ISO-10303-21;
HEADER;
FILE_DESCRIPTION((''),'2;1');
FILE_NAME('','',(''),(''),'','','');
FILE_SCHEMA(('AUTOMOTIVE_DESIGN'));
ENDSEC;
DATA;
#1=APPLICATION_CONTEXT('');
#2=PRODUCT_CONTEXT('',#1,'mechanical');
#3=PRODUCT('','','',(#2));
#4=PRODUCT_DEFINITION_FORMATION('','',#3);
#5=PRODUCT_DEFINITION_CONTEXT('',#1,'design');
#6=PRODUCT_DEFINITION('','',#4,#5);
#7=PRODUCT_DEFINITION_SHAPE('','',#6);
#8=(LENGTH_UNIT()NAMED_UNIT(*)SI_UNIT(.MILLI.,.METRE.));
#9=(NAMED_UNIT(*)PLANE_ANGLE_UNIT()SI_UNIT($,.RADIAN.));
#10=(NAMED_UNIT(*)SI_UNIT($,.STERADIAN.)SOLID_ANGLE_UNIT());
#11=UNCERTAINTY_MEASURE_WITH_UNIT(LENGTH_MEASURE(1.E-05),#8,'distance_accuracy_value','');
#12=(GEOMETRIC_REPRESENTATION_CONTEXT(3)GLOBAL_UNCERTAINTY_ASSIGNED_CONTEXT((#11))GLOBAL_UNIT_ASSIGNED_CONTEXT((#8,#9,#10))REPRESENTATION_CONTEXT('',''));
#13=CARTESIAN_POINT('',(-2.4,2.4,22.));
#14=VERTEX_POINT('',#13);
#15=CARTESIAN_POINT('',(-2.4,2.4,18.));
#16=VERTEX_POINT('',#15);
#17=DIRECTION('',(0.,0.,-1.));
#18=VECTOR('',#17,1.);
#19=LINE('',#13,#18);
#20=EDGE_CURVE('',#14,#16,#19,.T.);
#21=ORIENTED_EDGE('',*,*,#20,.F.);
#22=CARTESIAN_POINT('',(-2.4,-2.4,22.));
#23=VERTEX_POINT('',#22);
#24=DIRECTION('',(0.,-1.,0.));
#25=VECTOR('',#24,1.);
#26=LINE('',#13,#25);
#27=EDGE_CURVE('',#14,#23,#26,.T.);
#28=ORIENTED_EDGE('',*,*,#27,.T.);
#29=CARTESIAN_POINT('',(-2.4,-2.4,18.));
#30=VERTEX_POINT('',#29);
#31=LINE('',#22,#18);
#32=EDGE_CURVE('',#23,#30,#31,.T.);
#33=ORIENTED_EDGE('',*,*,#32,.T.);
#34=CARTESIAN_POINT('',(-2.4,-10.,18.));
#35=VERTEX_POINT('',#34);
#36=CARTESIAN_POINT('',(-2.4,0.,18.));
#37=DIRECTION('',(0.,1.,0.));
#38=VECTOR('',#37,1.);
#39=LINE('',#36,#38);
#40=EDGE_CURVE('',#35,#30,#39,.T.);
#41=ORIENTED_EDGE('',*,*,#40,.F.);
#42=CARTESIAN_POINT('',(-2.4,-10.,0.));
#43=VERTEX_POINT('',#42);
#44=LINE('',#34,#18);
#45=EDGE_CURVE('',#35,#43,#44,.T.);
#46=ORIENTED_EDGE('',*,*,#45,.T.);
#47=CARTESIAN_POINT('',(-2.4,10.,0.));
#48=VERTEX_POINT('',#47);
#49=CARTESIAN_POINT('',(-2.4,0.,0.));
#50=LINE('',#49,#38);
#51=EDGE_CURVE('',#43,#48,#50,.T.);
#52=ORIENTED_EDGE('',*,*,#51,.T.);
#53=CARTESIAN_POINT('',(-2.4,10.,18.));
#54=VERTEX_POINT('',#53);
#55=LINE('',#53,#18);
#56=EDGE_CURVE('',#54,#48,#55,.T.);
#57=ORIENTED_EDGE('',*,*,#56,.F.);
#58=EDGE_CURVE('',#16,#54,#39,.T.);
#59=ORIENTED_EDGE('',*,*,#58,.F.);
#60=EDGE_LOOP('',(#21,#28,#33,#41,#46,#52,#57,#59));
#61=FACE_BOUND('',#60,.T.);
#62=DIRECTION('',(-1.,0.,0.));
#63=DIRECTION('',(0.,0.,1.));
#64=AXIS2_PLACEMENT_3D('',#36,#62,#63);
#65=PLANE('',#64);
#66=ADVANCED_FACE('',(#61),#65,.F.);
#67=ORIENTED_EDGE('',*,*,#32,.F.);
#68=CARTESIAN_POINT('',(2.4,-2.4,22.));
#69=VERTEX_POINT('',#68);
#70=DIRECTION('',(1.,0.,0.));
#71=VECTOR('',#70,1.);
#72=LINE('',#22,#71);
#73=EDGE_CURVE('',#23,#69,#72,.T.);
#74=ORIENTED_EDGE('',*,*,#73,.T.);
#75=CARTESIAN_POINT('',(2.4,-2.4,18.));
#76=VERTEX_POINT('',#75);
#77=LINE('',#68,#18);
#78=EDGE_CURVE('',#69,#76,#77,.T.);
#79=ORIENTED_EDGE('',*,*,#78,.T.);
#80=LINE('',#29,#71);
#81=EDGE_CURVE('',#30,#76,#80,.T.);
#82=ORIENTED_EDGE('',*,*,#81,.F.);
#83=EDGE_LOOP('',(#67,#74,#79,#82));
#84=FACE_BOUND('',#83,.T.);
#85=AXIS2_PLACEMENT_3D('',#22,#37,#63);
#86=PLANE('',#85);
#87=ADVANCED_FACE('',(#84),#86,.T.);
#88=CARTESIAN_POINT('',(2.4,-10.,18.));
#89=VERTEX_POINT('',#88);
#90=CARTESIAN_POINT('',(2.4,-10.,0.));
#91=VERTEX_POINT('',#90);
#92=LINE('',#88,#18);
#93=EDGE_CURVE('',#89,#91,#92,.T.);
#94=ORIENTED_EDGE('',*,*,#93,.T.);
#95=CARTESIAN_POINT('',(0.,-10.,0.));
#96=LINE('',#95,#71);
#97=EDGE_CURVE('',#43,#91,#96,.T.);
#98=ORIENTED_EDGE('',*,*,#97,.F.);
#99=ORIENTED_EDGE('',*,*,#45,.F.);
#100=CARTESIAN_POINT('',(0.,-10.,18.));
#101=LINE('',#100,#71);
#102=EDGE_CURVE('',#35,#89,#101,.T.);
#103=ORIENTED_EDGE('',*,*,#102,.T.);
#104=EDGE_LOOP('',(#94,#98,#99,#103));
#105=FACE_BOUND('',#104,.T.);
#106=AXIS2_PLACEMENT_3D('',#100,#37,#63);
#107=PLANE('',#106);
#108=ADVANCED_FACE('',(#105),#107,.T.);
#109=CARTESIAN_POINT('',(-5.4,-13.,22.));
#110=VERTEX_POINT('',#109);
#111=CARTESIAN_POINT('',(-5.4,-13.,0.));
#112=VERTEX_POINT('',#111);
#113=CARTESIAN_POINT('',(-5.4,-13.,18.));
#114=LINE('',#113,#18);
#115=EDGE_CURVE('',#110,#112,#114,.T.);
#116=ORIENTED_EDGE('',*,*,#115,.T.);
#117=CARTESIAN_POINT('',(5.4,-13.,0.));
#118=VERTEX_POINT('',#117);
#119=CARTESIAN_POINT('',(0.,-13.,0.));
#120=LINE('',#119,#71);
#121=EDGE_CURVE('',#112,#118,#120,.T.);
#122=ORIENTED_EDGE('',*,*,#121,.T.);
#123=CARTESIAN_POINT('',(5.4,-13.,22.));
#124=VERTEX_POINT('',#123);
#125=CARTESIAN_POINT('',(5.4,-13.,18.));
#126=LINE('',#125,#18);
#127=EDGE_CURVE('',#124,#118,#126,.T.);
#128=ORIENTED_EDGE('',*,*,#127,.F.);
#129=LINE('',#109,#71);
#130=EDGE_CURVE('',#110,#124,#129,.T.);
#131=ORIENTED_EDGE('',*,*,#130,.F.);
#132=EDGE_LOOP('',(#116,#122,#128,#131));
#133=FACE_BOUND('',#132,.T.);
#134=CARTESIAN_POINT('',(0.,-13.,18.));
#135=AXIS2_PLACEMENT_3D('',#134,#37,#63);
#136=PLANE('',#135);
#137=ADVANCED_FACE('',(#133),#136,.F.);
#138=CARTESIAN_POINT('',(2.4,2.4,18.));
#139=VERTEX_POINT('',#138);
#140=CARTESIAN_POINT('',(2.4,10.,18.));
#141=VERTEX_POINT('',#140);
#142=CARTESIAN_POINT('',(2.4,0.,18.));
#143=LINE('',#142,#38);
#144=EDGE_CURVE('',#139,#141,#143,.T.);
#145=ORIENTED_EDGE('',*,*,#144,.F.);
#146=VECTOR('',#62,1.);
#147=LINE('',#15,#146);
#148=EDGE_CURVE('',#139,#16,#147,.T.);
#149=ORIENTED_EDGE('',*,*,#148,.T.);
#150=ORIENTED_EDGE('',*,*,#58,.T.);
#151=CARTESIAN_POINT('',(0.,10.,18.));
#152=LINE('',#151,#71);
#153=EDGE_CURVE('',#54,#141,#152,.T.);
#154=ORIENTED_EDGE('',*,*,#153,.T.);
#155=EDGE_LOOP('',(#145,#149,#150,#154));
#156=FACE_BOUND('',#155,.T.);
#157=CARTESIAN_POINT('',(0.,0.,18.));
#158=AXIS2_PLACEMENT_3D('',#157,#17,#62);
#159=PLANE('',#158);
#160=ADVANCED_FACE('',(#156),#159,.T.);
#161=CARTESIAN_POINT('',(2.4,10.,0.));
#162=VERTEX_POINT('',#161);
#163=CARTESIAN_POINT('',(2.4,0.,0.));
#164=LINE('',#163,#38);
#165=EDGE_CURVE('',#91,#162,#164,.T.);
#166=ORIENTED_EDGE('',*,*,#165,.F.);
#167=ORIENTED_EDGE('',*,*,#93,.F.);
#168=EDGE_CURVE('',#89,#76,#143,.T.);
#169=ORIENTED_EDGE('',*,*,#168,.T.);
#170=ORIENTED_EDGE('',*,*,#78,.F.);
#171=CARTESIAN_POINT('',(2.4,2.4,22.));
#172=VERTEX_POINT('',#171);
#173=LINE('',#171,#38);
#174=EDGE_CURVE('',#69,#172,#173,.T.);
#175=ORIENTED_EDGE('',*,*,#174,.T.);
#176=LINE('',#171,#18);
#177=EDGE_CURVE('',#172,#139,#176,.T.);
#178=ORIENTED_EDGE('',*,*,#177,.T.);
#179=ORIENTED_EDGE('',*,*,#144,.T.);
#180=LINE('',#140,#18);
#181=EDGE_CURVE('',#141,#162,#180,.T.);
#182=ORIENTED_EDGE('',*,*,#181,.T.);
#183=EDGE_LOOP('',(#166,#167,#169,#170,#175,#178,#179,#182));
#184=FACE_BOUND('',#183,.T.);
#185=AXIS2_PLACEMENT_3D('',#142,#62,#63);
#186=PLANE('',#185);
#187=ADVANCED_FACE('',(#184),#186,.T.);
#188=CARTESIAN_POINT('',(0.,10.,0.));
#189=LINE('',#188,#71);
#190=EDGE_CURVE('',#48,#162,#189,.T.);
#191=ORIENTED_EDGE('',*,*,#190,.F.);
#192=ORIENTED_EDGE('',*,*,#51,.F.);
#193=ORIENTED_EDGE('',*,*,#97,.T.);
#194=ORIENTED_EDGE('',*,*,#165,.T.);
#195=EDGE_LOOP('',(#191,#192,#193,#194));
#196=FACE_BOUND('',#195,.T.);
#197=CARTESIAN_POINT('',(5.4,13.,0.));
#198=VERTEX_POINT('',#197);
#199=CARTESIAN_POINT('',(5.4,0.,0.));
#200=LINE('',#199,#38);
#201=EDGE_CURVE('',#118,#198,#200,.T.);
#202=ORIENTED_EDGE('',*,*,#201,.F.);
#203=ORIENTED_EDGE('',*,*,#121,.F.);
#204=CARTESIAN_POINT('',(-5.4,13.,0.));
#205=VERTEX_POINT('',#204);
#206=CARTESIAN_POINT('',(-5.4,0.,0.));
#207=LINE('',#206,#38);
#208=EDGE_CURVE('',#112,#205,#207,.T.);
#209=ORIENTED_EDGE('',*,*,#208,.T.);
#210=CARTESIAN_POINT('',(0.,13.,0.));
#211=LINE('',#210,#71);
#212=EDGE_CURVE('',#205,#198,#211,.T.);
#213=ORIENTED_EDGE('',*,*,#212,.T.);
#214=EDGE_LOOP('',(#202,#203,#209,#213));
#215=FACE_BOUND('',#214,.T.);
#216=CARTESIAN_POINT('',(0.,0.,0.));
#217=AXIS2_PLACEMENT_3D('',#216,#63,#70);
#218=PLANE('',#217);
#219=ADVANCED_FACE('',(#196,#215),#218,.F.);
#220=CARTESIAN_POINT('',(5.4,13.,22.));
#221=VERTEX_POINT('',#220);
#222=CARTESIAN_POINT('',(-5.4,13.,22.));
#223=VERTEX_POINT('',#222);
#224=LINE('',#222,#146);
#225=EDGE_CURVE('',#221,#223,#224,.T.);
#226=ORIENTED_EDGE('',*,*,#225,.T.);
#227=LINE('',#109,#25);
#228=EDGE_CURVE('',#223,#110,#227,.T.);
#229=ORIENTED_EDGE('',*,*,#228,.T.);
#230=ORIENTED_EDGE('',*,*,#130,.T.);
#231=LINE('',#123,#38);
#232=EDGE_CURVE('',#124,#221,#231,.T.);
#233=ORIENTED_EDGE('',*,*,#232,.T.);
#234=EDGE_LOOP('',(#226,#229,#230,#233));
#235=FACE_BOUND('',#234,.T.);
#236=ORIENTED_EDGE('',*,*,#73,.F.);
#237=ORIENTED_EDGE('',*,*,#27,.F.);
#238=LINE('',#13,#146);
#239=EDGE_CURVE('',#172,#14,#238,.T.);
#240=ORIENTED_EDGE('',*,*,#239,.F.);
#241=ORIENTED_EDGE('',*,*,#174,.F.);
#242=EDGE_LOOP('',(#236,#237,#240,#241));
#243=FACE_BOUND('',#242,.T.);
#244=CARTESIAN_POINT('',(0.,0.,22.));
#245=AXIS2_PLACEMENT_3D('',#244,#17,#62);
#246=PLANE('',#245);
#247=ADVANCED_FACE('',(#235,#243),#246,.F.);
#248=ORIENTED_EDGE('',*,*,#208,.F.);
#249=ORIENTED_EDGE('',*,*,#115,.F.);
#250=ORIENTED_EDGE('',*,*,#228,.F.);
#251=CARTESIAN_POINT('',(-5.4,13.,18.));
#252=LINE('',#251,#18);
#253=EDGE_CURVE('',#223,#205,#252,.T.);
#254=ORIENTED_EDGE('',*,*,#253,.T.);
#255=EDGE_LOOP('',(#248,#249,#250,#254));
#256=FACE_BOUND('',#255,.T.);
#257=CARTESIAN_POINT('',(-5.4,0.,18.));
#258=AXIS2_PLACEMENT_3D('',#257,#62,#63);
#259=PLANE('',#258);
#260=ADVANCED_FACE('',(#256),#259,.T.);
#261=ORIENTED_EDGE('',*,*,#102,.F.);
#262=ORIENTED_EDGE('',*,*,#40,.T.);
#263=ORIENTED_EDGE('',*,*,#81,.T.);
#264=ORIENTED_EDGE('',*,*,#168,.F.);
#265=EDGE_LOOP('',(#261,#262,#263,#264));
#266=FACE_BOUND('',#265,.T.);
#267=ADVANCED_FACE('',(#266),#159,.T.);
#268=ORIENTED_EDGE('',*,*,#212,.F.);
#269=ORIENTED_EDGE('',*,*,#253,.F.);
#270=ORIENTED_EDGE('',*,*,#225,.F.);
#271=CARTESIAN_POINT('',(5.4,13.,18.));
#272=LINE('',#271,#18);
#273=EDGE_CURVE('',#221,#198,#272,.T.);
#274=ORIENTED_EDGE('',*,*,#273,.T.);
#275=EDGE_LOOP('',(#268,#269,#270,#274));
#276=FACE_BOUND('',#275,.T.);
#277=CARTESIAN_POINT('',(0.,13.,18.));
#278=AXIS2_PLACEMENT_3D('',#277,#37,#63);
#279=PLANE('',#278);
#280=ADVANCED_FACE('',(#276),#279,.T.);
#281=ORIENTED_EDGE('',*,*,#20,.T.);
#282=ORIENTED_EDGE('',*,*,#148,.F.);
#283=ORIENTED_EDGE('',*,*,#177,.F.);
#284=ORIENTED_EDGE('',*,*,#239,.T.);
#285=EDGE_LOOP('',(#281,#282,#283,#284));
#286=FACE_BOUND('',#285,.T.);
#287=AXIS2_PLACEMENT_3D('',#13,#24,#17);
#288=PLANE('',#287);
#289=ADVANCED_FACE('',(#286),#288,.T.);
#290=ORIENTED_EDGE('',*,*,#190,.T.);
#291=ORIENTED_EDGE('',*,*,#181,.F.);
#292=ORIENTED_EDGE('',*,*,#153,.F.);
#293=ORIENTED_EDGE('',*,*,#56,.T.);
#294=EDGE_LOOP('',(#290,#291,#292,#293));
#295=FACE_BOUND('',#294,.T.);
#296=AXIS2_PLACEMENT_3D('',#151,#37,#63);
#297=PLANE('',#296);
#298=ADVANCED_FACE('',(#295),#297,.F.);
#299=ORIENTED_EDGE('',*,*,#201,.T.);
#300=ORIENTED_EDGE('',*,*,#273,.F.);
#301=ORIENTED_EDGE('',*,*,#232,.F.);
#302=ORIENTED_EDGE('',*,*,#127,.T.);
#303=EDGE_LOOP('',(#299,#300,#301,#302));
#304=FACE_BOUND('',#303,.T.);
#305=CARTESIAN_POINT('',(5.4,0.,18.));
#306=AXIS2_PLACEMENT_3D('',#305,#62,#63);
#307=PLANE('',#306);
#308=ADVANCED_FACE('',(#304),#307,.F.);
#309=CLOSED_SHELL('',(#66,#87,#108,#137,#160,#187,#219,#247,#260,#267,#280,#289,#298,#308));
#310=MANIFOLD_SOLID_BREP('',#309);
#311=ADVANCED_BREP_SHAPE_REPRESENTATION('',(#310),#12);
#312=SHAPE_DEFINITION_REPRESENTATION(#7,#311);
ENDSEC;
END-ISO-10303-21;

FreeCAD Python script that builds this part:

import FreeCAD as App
import Part
import Sketcher
from FreeCAD import Vector
Q = App.Units.Quantity

doc = App.newDocument("Part")
params = doc.addObject("Spreadsheet::Sheet", "Params")
for row, (alias, value) in enumerate([
    ("sketch1_height", "26 mm"),
    ("sketch1_height2", "20 mm"),
    ("sketch1_width", "10.8 mm"),
    ("sketch1_width2", "4.8 mm"),
    ("pad1_length", "18 mm"),
    ("sketch2_height", "26 mm"),
    ("sketch2_width", "10.8 mm"),
    ("sketch2_width2", "4.8 mm"),
    ("pad2_length", "4 mm"),
], start=1):
    params.set(f"A{row}", alias)
    params.set(f"B{row}", "=" + value)
    params.setAlias(f"B{row}", alias)

body = doc.addObject("PartDesign::Body", "Body")

sketch1 = body.newObject("Sketcher::SketchObject", "Sketch")
sketch1.AttachmentSupport = (doc.getObject("XY_Plane"), [""])
sketch1.MapMode = "FlatFace"
sketch1.addGeometry(Part.LineSegment(Vector(-5.4, 13, 0), Vector(-5.4, -13, 0)), False)
sketch1.addGeometry(Part.LineSegment(Vector(-5.4, -13, 0), Vector(5.4, -13, 0)), False)
sketch1.addGeometry(Part.LineSegment(Vector(5.4, -13, 0), Vector(5.4, 13, 0)), False)
sketch1.addGeometry(Part.LineSegment(Vector(5.4, 13, 0), Vector(-5.4, 13, 0)), False)
sketch1.addGeometry(Part.LineSegment(Vector(2.4, -10, 0), Vector(-2.4, -10, 0)), False)
sketch1.addGeometry(Part.LineSegment(Vector(-2.4, -10, 0), Vector(-2.4, 10, 0)), False)
sketch1.addGeometry(Part.LineSegment(Vector(-2.4, 10, 0), Vector(2.4, 10, 0)), False)
sketch1.addGeometry(Part.LineSegment(Vector(2.4, 10, 0), Vector(2.4, -10, 0)), False)
sketch1.addConstraint(Sketcher.Constraint("Coincident", 0, 2, 1, 1))
sketch1.addConstraint(Sketcher.Constraint("Coincident", 1, 2, 2, 1))
sketch1.addConstraint(Sketcher.Constraint("Coincident", 2, 2, 3, 1))
sketch1.addConstraint(Sketcher.Constraint("Coincident", 3, 2, 0, 1))
sketch1.addConstraint(Sketcher.Constraint("Coincident", 4, 2, 5, 1))
sketch1.addConstraint(Sketcher.Constraint("Coincident", 5, 2, 6, 1))
sketch1.addConstraint(Sketcher.Constraint("Coincident", 6, 2, 7, 1))
sketch1.addConstraint(Sketcher.Constraint("Coincident", 7, 2, 4, 1))
sketch1.addConstraint(Sketcher.Constraint("Vertical", 0))
sketch1.addConstraint(Sketcher.Constraint("Horizontal", 1))
sketch1.addConstraint(Sketcher.Constraint("Vertical", 2))
sketch1.addConstraint(Sketcher.Constraint("Horizontal", 3))
sketch1.addConstraint(Sketcher.Constraint("Horizontal", 4))
sketch1.addConstraint(Sketcher.Constraint("Vertical", 5))
sketch1.addConstraint(Sketcher.Constraint("Horizontal", 6))
sketch1.addConstraint(Sketcher.Constraint("Vertical", 7))
sketch1.addConstraint(Sketcher.Constraint("Symmetric", 0, 2, 2, 2, -1, 1))
sketch1.addConstraint(Sketcher.Constraint("Symmetric", 4, 2, 6, 2, -1, 1))
sketch1.addConstraint(Sketcher.Constraint("DistanceY", 0, 2, 0, 1, Q("26 mm")))
sketch1.addConstraint(Sketcher.Constraint("DistanceY", 5, 1, 5, 2, Q("20 mm")))
sketch1.addConstraint(Sketcher.Constraint("DistanceX", 1, 1, 1, 2, Q("10.8 mm")))
sketch1.addConstraint(Sketcher.Constraint("DistanceX", 4, 2, 4, 1, Q("4.8 mm")))
sketch1.setExpression("Constraints[18]", "Params.sketch1_height")
sketch1.setExpression("Constraints[19]", "Params.sketch1_height2")
sketch1.setExpression("Constraints[20]", "Params.sketch1_width")
sketch1.setExpression("Constraints[21]", "Params.sketch1_width2")
pad1 = body.newObject("PartDesign::Pad", "Pad")
pad1.Profile = sketch1
pad1.setExpression("Length", "Params.pad1_length")

sketch2 = body.newObject("Sketcher::SketchObject", "Sketch001")
sketch2.AttachmentSupport = (doc.getObject("XY_Plane"), [""])
sketch2.MapMode = "FlatFace"
sketch2.AttachmentOffset = App.Placement(Vector(0, 0, 18), App.Rotation())
sketch2.addGeometry(Part.LineSegment(Vector(-5.4, 13, 0), Vector(-5.4, -13, 0)), False)
sketch2.addGeometry(Part.LineSegment(Vector(-5.4, -13, 0), Vector(5.4, -13, 0)), False)
sketch2.addGeometry(Part.LineSegment(Vector(5.4, -13, 0), Vector(5.4, 13, 0)), False)
sketch2.addGeometry(Part.LineSegment(Vector(5.4, 13, 0), Vector(-5.4, 13, 0)), False)
sketch2.addGeometry(Part.LineSegment(Vector(2.4, -2.4, 0), Vector(-2.4, -2.4, 0)), False)
sketch2.addGeometry(Part.LineSegment(Vector(-2.4, -2.4, 0), Vector(-2.4, 2.4, 0)), False)
sketch2.addGeometry(Part.LineSegment(Vector(-2.4, 2.4, 0), Vector(2.4, 2.4, 0)), False)
sketch2.addGeometry(Part.LineSegment(Vector(2.4, 2.4, 0), Vector(2.4, -2.4, 0)), False)
sketch2.addConstraint(Sketcher.Constraint("Coincident", 0, 2, 1, 1))
sketch2.addConstraint(Sketcher.Constraint("Coincident", 1, 2, 2, 1))
sketch2.addConstraint(Sketcher.Constraint("Coincident", 2, 2, 3, 1))
sketch2.addConstraint(Sketcher.Constraint("Coincident", 3, 2, 0, 1))
sketch2.addConstraint(Sketcher.Constraint("Coincident", 4, 2, 5, 1))
sketch2.addConstraint(Sketcher.Constraint("Coincident", 5, 2, 6, 1))
sketch2.addConstraint(Sketcher.Constraint("Coincident", 6, 2, 7, 1))
sketch2.addConstraint(Sketcher.Constraint("Coincident", 7, 2, 4, 1))
sketch2.addConstraint(Sketcher.Constraint("Vertical", 0))
sketch2.addConstraint(Sketcher.Constraint("Horizontal", 1))
sketch2.addConstraint(Sketcher.Constraint("Vertical", 2))
sketch2.addConstraint(Sketcher.Constraint("Horizontal", 3))
sketch2.addConstraint(Sketcher.Constraint("Horizontal", 4))
sketch2.addConstraint(Sketcher.Constraint("Vertical", 5))
sketch2.addConstraint(Sketcher.Constraint("Horizontal", 6))
sketch2.addConstraint(Sketcher.Constraint("Vertical", 7))
sketch2.addConstraint(Sketcher.Constraint("Symmetric", 0, 2, 2, 2, -1, 1))
sketch2.addConstraint(Sketcher.Constraint("Symmetric", 4, 2, 6, 2, -1, 1))
sketch2.addConstraint(Sketcher.Constraint("Equal", 6, 5))
sketch2.addConstraint(Sketcher.Constraint("DistanceY", 0, 2, 0, 1, Q("26 mm")))
sketch2.addConstraint(Sketcher.Constraint("DistanceX", 1, 1, 1, 2, Q("10.8 mm")))
sketch2.addConstraint(Sketcher.Constraint("DistanceX", 4, 2, 4, 1, Q("4.8 mm")))
sketch2.setExpression("Constraints[19]", "Params.sketch2_height")
sketch2.setExpression("Constraints[20]", "Params.sketch2_width")
sketch2.setExpression("Constraints[21]", "Params.sketch2_width2")
pad2 = body.newObject("PartDesign::Pad", "Pad001")
pad2.Profile = sketch2
pad2.setExpression("Length", "Params.pad2_length")

doc.recompute()
